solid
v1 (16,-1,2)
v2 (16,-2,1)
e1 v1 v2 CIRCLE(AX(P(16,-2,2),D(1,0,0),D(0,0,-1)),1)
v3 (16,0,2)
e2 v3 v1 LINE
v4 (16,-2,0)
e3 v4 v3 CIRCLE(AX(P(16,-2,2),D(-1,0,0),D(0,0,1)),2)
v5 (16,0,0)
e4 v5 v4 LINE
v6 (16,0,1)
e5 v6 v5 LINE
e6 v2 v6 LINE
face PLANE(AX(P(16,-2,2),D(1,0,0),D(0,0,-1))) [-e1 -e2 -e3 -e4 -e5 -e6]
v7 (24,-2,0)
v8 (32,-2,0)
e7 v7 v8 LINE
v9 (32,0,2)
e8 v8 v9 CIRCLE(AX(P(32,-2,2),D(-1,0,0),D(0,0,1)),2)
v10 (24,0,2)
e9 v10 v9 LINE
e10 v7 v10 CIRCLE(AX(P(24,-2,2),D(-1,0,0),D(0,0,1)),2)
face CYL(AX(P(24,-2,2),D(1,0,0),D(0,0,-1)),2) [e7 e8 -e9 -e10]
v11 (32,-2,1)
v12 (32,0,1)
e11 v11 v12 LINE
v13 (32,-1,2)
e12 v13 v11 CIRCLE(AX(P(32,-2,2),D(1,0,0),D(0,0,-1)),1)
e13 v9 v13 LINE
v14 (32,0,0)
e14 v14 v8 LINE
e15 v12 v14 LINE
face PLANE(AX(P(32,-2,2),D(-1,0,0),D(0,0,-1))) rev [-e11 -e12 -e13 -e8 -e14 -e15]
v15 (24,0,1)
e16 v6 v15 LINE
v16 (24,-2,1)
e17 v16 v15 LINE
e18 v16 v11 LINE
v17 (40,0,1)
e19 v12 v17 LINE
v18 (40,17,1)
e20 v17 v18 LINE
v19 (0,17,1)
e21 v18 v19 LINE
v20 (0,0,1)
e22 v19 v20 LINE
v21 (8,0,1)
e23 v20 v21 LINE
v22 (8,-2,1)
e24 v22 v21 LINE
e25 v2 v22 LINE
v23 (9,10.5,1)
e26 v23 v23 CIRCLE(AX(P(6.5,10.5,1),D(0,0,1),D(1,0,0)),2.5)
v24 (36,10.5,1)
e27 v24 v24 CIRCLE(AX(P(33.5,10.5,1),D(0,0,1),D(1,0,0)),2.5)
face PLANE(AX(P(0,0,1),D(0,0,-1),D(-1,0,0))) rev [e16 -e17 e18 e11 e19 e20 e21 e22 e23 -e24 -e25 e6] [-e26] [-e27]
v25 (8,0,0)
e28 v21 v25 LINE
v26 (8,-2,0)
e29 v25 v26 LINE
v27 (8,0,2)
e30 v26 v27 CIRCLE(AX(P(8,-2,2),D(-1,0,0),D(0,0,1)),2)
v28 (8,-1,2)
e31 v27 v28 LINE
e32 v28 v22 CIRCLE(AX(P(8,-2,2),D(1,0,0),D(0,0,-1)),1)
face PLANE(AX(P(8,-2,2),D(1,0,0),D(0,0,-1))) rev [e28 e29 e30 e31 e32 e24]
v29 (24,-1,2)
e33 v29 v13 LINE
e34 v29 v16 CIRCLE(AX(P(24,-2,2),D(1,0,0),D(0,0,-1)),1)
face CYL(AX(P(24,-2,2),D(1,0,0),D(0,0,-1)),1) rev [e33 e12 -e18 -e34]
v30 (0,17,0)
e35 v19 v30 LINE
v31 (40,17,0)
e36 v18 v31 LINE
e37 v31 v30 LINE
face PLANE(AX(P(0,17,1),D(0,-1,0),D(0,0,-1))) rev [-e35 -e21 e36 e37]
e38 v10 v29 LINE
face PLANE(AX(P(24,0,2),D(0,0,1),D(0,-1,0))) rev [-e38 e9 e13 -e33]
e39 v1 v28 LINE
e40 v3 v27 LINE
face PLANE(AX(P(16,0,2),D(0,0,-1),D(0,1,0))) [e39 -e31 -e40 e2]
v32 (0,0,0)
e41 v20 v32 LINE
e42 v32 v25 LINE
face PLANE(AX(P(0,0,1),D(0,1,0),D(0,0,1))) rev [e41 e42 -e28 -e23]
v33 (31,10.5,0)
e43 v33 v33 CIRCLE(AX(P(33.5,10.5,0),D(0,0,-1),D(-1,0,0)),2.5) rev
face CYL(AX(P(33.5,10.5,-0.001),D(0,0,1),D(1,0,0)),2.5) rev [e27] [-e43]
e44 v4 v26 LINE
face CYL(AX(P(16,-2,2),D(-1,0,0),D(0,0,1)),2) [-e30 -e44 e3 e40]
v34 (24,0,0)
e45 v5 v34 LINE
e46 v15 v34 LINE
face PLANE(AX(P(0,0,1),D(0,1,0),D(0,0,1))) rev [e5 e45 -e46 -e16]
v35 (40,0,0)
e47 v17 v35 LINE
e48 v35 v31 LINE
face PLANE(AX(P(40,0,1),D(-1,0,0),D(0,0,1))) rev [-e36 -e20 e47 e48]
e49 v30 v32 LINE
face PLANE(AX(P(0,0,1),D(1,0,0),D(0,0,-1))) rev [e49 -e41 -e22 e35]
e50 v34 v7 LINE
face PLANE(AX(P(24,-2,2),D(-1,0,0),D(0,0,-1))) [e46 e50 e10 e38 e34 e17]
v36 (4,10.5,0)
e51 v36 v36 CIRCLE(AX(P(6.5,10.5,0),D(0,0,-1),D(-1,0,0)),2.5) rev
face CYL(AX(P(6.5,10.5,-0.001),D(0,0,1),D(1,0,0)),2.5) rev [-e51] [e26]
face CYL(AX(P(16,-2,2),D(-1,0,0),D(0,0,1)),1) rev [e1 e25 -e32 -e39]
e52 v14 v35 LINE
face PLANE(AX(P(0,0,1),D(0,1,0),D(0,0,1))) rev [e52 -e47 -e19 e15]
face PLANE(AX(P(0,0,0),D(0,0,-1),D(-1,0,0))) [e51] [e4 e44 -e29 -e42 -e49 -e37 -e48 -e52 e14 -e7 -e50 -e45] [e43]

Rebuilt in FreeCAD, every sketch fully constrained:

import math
import FreeCAD as App
import Part
import Sketcher
from FreeCAD import Vector

doc = App.newDocument("Part")
body = doc.addObject("PartDesign::Body", "Body")

sketch1 = body.newObject("Sketcher::SketchObject", "Sketch")
sketch1.AttachmentSupport = (doc.getObject("XY_Plane"), [""])
sketch1.MapMode = "FlatFace"
sketch1.addGeometry([
    Part.LineSegment(Vector(0, 17, 0), Vector(0, 0, 0)),
    Part.LineSegment(Vector(0, 0, 0), Vector(40, 0, 0)),
    Part.LineSegment(Vector(40, 0, 0), Vector(40, 17, 0)),
    Part.LineSegment(Vector(40, 17, 0), Vector(0, 17, 0)),
], False)
sketch1.addConstraint([
    Sketcher.Constraint("Coincident", 0, 2, 1, 1),
    Sketcher.Constraint("Coincident", 1, 2, 2, 1),
    Sketcher.Constraint("Coincident", 2, 2, 3, 1),
    Sketcher.Constraint("Coincident", 3, 2, 0, 1),
    Sketcher.Constraint("Vertical", 0),
    Sketcher.Constraint("Horizontal", 1),
    Sketcher.Constraint("Vertical", 2),
    Sketcher.Constraint("Horizontal", 3),
    Sketcher.Constraint("Coincident", 0, 2, -1, 1),
    Sketcher.Constraint("DistanceX", 1, 1, 1, 2, 40.0),
    Sketcher.Constraint("DistanceY", 0, 2, 0, 1, 17.0),
])
pad1 = body.newObject("PartDesign::Pad", "Pad")
pad1.Profile = sketch1
pad1.Length = 1

sketch2 = body.newObject("Sketcher::SketchObject", "Sketch001")
sketch2.AttachmentSupport = (doc.getObject("XY_Plane"), [""])
sketch2.MapMode = "FlatFace"
sketch2.AttachmentOffset = App.Placement(Vector(0, 0, 1), App.Rotation())
sketch2.addGeometry(Part.Circle(Vector(6.5, 10.5, 0), Vector(0, 0, 1), 2.5), False)
sketch2.addConstraint([
    Sketcher.Constraint("Diameter", 0, 5.0),
    Sketcher.Constraint("DistanceX", -1, 1, 0, 3, 6.5),
    Sketcher.Constraint("DistanceY", -1, 1, 0, 3, 10.5),
])
pocket1 = body.newObject("PartDesign::Pocket", "Pocket")
pocket1.Profile = sketch2
pocket1.Type = "UpToFirst"

sketch3 = body.newObject("Sketcher::SketchObject", "Sketch002")
sketch3.AttachmentSupport = (doc.getObject("XY_Plane"), [""])
sketch3.MapMode = "FlatFace"
sketch3.AttachmentOffset = App.Placement(Vector(0, 0, 1), App.Rotation())
sketch3.addGeometry(Part.Circle(Vector(33.5, 10.5, 0), Vector(0, 0, 1), 2.5), False)
sketch3.addConstraint([
    Sketcher.Constraint("Diameter", 0, 5.0),
    Sketcher.Constraint("DistanceX", -1, 1, 0, 3, 33.5),
    Sketcher.Constraint("DistanceY", -1, 1, 0, 3, 10.5),
])
pocket2 = body.newObject("PartDesign::Pocket", "Pocket001")
pocket2.Profile = sketch3
pocket2.Type = "UpToFirst"

sketch4 = body.newObject("Sketcher::SketchObject", "Sketch003")
sketch4.AttachmentSupport = (doc.getObject("YZ_Plane"), [""])
sketch4.MapMode = "FlatFace"
sketch4.AttachmentOffset = App.Placement(Vector(0, 0, 8), App.Rotation())
sketch4.addGeometry([
    Part.LineSegment(Vector(0, 0, 0), Vector(-2, 0, 0)),
    Part.ArcOfCircle(Part.Circle(Vector(-2, 2, 0), Vector(0, 0, 1), 2), math.radians(0), math.radians(270)),
    Part.LineSegment(Vector(0, 2, 0), Vector(-1, 2, 0)),
    Part.ArcOfCircle(Part.Circle(Vector(-2, 2, 0), Vector(0, 0, 1), 1), math.radians(0), math.radians(270)),
    Part.LineSegment(Vector(-2, 1, 0), Vector(0, 1, 0)),
    Part.LineSegment(Vector(0, 1, 0), Vector(0, 0, 0)),
], False)
sketch4.addConstraint([
    Sketcher.Constraint("Tangent", 0, 2, 1, 2),
    Sketcher.Constraint("Coincident", 1, 1, 2, 1),
    Sketcher.Constraint("Coincident", 2, 2, 3, 1),
    Sketcher.Constraint("Tangent", 3, 2, 4, 1),
    Sketcher.Constraint("Coincident", 4, 2, 5, 1),
    Sketcher.Constraint("Coincident", 5, 2, 0, 1),
    Sketcher.Constraint("Horizontal", 0),
    Sketcher.Constraint("Horizontal", 2),
    Sketcher.Constraint("Horizontal", 4),
    Sketcher.Constraint("Vertical", 5),
    Sketcher.Constraint("Coincident", 5, 2, -1, 1),
    Sketcher.Constraint("Coincident", 3, 3, 1, 3),
    Sketcher.Constraint("PointOnObject", 1, 1, -2),
    Sketcher.Constraint("Horizontal", 3, 3, 1, 1),
    Sketcher.Constraint("Radius", 1, 2.0),
    Sketcher.Constraint("Radius", 3, 1.0),
])
pad2 = body.newObject("PartDesign::Pad", "Pad001")
pad2.Profile = sketch4
pad2.Length = 8
doc.recompute()

datumplane = body.newObject("PartDesign::Plane", "DatumPlane")
datumplane.AttachmentSupport = (doc.getObject("YZ_Plane"), [""])
datumplane.MapMode = "FlatFace"
datumplane.AttachmentOffset = App.Placement(Vector(0, 0, 20), App.Rotation())
mirrored = body.newObject("PartDesign::Mirrored", "Mirrored")
mirrored.Originals = [pad2]
mirrored.MirrorPlane = (datumplane, [""])
body.Tip = mirrored

doc.recompute()
